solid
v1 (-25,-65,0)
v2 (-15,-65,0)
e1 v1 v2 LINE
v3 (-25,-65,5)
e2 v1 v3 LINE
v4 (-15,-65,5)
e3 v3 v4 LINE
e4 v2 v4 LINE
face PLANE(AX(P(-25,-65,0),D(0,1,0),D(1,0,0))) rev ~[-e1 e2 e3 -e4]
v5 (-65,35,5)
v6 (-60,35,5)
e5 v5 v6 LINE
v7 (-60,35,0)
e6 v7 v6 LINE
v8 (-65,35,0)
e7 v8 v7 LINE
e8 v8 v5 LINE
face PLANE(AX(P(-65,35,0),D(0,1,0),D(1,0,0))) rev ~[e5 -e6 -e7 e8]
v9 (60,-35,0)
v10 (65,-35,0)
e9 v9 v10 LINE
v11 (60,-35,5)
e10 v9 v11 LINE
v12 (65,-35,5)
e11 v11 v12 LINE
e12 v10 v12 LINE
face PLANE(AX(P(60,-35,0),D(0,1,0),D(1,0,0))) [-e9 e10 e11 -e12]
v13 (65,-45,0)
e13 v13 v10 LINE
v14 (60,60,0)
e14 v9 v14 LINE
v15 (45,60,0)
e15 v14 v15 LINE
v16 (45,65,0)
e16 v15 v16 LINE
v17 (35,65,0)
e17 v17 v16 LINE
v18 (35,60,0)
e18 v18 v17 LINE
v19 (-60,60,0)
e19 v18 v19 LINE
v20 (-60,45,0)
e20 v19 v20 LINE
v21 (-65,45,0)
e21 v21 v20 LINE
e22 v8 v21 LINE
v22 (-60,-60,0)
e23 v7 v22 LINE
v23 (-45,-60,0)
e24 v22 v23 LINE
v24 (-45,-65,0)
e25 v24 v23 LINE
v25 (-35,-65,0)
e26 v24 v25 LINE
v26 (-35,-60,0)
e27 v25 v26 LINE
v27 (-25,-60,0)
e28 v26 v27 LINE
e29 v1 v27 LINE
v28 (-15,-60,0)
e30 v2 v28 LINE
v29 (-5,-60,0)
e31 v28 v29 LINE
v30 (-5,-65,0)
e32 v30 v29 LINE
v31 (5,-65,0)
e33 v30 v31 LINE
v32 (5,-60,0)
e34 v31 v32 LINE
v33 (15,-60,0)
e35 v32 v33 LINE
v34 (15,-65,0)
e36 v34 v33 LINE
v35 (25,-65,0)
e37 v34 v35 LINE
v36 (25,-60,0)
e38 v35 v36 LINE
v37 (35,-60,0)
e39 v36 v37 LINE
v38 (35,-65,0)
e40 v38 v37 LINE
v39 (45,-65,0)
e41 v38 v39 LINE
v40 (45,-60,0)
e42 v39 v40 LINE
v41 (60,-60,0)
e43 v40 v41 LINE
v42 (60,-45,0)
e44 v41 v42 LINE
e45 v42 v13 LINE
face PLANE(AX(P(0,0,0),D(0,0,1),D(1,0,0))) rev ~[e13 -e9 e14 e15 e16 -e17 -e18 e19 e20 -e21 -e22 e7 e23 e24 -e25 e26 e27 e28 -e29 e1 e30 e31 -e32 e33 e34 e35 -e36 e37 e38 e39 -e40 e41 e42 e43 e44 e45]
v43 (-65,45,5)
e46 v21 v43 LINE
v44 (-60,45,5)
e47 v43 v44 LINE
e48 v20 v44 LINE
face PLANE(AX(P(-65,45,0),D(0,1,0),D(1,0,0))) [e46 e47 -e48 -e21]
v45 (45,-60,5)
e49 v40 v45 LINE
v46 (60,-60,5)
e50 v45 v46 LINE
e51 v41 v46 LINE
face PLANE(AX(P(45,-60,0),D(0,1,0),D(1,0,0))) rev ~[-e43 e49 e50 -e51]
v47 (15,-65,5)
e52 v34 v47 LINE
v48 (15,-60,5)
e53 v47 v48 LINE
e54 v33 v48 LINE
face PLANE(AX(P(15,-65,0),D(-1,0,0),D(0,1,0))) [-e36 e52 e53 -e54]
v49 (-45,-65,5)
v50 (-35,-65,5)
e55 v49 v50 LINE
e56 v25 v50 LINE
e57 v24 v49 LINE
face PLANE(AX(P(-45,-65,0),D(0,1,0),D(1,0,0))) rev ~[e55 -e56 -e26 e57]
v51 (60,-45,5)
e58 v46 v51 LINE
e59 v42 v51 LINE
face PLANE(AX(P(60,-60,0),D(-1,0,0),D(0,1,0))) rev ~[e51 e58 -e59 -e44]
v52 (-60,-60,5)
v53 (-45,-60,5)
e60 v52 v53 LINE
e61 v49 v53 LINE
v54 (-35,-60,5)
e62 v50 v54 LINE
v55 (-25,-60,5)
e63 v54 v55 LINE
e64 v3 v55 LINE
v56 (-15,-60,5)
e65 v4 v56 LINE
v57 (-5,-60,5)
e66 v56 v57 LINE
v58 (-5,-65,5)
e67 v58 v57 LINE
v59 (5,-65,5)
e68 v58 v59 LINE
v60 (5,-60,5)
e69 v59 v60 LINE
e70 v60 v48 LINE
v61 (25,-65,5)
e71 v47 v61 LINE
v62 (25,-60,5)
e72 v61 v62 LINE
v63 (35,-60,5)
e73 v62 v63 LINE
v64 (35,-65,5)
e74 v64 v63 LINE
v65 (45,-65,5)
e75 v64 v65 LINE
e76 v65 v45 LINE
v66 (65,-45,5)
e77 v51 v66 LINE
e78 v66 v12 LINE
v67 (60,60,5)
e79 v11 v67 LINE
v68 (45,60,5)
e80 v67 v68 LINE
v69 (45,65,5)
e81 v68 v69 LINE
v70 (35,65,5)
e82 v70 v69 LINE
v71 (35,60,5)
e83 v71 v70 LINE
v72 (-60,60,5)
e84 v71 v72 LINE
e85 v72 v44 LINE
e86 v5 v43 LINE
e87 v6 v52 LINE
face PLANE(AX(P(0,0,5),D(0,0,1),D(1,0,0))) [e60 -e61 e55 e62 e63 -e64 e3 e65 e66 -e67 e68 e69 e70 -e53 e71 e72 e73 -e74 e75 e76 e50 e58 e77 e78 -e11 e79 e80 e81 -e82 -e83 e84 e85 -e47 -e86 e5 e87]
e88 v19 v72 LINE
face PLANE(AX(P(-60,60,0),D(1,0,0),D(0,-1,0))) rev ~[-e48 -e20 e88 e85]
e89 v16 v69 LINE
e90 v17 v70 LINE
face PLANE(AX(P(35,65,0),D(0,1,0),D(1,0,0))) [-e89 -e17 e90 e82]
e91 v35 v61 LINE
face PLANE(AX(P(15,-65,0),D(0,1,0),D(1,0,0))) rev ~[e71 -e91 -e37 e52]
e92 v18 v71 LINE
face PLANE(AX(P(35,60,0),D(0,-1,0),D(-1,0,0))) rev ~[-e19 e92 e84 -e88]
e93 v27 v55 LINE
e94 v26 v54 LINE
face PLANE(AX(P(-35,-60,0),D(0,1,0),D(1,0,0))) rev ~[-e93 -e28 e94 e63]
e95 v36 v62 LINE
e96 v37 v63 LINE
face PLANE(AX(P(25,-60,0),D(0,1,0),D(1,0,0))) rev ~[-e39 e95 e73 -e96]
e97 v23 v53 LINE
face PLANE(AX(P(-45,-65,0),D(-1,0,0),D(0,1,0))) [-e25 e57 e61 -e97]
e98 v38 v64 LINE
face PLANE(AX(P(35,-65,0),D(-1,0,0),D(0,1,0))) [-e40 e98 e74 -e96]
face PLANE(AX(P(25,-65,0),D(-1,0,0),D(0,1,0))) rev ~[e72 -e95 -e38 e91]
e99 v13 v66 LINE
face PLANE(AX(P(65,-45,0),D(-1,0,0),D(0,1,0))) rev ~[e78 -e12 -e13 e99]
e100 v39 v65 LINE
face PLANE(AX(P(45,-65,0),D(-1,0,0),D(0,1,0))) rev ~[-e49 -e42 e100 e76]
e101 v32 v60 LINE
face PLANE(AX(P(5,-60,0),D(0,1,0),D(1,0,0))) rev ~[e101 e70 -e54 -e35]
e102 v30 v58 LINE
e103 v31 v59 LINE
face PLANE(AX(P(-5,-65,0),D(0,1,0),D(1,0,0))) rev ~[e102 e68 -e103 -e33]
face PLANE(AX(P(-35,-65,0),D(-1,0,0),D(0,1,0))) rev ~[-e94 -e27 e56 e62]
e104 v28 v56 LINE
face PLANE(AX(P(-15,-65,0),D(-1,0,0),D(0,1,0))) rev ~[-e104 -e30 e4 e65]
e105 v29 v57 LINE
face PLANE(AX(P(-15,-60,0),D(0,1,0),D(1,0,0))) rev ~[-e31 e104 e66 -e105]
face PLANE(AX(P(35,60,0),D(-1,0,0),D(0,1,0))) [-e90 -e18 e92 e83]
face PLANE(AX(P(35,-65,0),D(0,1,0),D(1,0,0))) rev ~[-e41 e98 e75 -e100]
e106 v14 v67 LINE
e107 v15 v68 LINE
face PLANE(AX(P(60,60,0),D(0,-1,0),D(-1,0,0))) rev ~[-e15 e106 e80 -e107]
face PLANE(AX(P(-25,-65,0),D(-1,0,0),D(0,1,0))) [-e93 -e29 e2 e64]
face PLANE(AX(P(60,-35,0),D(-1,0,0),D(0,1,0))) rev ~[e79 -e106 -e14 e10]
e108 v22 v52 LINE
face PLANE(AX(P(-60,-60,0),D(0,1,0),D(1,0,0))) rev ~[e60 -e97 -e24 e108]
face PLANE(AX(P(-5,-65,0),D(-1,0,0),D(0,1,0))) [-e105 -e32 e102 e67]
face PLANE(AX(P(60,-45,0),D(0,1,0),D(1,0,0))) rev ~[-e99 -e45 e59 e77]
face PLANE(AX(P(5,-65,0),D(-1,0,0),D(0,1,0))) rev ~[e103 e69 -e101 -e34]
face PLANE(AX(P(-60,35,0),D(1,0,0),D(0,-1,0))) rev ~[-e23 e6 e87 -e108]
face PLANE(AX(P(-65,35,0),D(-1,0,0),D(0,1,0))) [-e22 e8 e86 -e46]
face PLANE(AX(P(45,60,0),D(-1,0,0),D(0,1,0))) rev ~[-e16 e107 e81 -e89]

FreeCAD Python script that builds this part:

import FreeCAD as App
import Part
import Sketcher
Q = App.Units.Quantity


def add_polygon(sketch, points):
    """Adds a closed chain of lines whose ends are joined by coincident constraints."""
    first, n = sketch.GeometryCount, len(points)
    for a, b in zip(points, points[1:] + points[:1]):
        sketch.addGeometry(Part.LineSegment(App.Vector(*a, 0), App.Vector(*b, 0)), False)
    for i in range(n):
        sketch.addConstraint(Sketcher.Constraint("Coincident", first + i, 2, first + (i + 1) % n, 1))

doc = App.newDocument("Part")
body = doc.addObject("PartDesign::Body", "Body")

sketch1 = doc.addObject("Sketcher::SketchObject", "Sketch")
body.addObject(sketch1)
sketch1.AttachmentSupport = (doc.XY_Plane, [""])
sketch1.MapMode = "FlatFace"
add_polygon(sketch1, [(60, 60), (45, 60), (45, 65), (35, 65), (35, 60), (-60, 60), (-60, 45), (-65, 45), (-65, 35), (-60, 35), (-60, -60), (-45, -60), (-45, -65), (-35, -65), (-35, -60), (-25, -60), (-25, -65), (-15, -65), (-15, -60), (-5, -60), (-5, -65), (5, -65), (5, -60), (15, -60), (15, -65), (25, -65), (25, -60), (35, -60), (35, -65), (45, -65), (45, -60), (60, -60), (60, -45), (65, -45), (65, -35), (60, -35)])
sketch1.addConstraint([
    Sketcher.Constraint("Horizontal", 0),
    Sketcher.Constraint("Vertical", 1),
    Sketcher.Constraint("Horizontal", 2),
    Sketcher.Constraint("Vertical", 3),
    Sketcher.Constraint("Horizontal", 4),
    Sketcher.Constraint("Vertical", 5),
    Sketcher.Constraint("Horizontal", 6),
    Sketcher.Constraint("Vertical", 7),
    Sketcher.Constraint("Horizontal", 8),
    Sketcher.Constraint("Vertical", 9),
    Sketcher.Constraint("Horizontal", 10),
    Sketcher.Constraint("Vertical", 11),
    Sketcher.Constraint("Horizontal", 12),
    Sketcher.Constraint("Vertical", 13),
    Sketcher.Constraint("Horizontal", 14),
    Sketcher.Constraint("Vertical", 15),
    Sketcher.Constraint("Horizontal", 16),
    Sketcher.Constraint("Vertical", 17),
    Sketcher.Constraint("Horizontal", 18),
    Sketcher.Constraint("Vertical", 19),
    Sketcher.Constraint("Horizontal", 20),
    Sketcher.Constraint("Vertical", 21),
    Sketcher.Constraint("Horizontal", 22),
    Sketcher.Constraint("Vertical", 23),
    Sketcher.Constraint("Horizontal", 24),
    Sketcher.Constraint("Vertical", 25),
    Sketcher.Constraint("Horizontal", 26),
    Sketcher.Constraint("Vertical", 27),
    Sketcher.Constraint("Horizontal", 28),
    Sketcher.Constraint("Vertical", 29),
    Sketcher.Constraint("Horizontal", 30),
    Sketcher.Constraint("Vertical", 31),
    Sketcher.Constraint("Horizontal", 32),
    Sketcher.Constraint("Vertical", 33),
    Sketcher.Constraint("Horizontal", 34),
    Sketcher.Constraint("Vertical", 35),
    Sketcher.Constraint("Symmetric", 0, 2, 10, 2, -1, 1),
    Sketcher.Constraint("Symmetric", 2, 2, 12, 2, -1, 1),
    Sketcher.Constraint("Symmetric", 4, 2, 30, 2, -1, 1),
    Sketcher.Constraint("Symmetric", 6, 2, 32, 2, -1, 1),
    Sketcher.Constraint("Symmetric", 8, 2, 34, 2, -1, 1),
    Sketcher.Constraint("Symmetric", 18, 2, 21, 2, -2),
    Sketcher.Constraint("Symmetric", 16, 2, 23, 2, -2),
    Sketcher.Constraint("Symmetric", 14, 2, 25, 2, -2),
    Sketcher.Constraint("Symmetric", 12, 2, 27, 2, -2),
    Sketcher.Constraint("Symmetric", 10, 2, 29, 2, -2),
    Sketcher.Constraint("Horizontal", 10, 2, 13, 2),
    Sketcher.Constraint("Horizontal", 12, 2, 15, 2),
    Sketcher.Constraint("Horizontal", 14, 2, 17, 2),
    Sketcher.Constraint("Horizontal", 16, 2, 19, 2),
    Sketcher.Constraint("Vertical", 5, 2, 8, 2),
    Sketcher.Constraint("Equal", 12, 14),
    Sketcher.Constraint("Equal", 14, 16),
    Sketcher.Constraint("Equal", 16, 18),
    Sketcher.Constraint("Equal", 18, 20),
    Sketcher.Constraint("Equal", 34, 1),
    Sketcher.Constraint("Equal", 30, 5),
    Sketcher.Constraint("Equal", 28, 7),
    Sketcher.Constraint("Equal", 4, 9),
    Sketcher.Constraint("DistanceX", 0, 2, 0, 1, Q("15 mm")),
    Sketcher.Constraint("DistanceX", 2, 2, 2, 1, Q("10 mm")),
    Sketcher.Constraint("DistanceX", 6, 2, 6, 1, Q("5 mm")),
])
pad1 = doc.addObject("PartDesign::Pad", "Pad")
body.addObject(pad1)
pad1.Profile = sketch1
pad1.Length = 5

doc.recompute()
